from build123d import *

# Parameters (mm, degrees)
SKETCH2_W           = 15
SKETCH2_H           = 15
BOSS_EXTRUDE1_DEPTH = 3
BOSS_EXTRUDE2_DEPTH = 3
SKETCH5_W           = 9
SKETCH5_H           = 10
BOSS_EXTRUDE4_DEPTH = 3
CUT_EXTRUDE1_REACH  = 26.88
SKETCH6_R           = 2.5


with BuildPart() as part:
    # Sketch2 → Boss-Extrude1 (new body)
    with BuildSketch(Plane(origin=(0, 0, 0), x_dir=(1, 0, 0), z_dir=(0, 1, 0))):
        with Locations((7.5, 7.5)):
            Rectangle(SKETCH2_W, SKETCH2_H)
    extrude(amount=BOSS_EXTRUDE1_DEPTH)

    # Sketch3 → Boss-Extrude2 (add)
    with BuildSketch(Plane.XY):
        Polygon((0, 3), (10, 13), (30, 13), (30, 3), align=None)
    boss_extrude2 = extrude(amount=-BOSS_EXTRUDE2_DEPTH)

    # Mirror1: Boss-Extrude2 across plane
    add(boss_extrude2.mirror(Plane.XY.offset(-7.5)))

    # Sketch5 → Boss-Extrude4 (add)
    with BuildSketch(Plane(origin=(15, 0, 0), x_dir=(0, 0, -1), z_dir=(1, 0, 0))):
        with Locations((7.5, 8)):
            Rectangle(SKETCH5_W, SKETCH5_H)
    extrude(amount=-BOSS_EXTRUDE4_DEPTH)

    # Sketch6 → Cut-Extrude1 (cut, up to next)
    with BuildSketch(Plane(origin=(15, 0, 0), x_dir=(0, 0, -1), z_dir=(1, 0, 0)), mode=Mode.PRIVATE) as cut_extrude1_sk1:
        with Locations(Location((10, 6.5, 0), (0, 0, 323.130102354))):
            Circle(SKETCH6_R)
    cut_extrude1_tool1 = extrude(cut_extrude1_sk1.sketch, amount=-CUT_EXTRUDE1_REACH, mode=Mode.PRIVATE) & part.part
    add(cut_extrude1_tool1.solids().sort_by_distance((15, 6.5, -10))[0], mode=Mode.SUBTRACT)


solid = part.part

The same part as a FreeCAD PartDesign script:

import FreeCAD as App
import Part
import Sketcher
from FreeCAD import Vector
Q = App.Units.Quantity

doc = App.newDocument("Part")
body = doc.addObject("PartDesign::Body", "Body")

sketch1 = doc.addObject("Sketcher::SketchObject", "Sketch")
body.addObject(sketch1)
sketch1.AttachmentSupport = (doc.XZ_Plane, [""])
sketch1.MapMode = "FlatFace"
sketch1.addGeometry([
    Part.LineSegment(Vector(0, -15, 0), Vector(0, 0, 0)),
    Part.LineSegment(Vector(0, 0, 0), Vector(15, 0, 0)),
    Part.LineSegment(Vector(15, 0, 0), Vector(15, -15, 0)),
    Part.LineSegment(Vector(15, -15, 0), Vector(0, -15, 0)),
], False)
sketch1.addConstraint([
    Sketcher.Constraint("Coincident", 0, 2, 1, 1),
    Sketcher.Constraint("Coincident", 1, 2, 2, 1),
    Sketcher.Constraint("Coincident", 2, 2, 3, 1),
    Sketcher.Constraint("Coincident", 3, 2, 0, 1),
    Sketcher.Constraint("Vertical", 0),
    Sketcher.Constraint("Horizontal", 1),
    Sketcher.Constraint("Vertical", 2),
    Sketcher.Constraint("Horizontal", 3),
    Sketcher.Constraint("Coincident", 0, 2, -1, 1),
    Sketcher.Constraint("Equal", 3, 0),
    Sketcher.Constraint("DistanceX", 1, 1, 1, 2, Q("15 mm")),
])
pad1 = doc.addObject("PartDesign::Pad", "Pad")
body.addObject(pad1)
pad1.Profile = sketch1
pad1.Length = 3
pad1.Reversed = True

sketch2 = doc.addObject("Sketcher::SketchObject", "Sketch001")
body.addObject(sketch2)
sketch2.AttachmentSupport = (doc.XY_Plane, [""])
sketch2.MapMode = "FlatFace"
sketch2.addGeometry([
    Part.LineSegment(Vector(10, 13, 0), Vector(0, 3, 0)),
    Part.LineSegment(Vector(0, 3, 0), Vector(30, 3, 0)),
    Part.LineSegment(Vector(30, 3, 0), Vector(30, 13, 0)),
    Part.LineSegment(Vector(30, 13, 0), Vector(10, 13, 0)),
], False)
sketch2.addConstraint([
    Sketcher.Constraint("Coincident", 0, 2, 1, 1),
    Sketcher.Constraint("Coincident", 1, 2, 2, 1),
    Sketcher.Constraint("Coincident", 2, 2, 3, 1),
    Sketcher.Constraint("Coincident", 3, 2, 0, 1),
    Sketcher.Constraint("Horizontal", 1),
    Sketcher.Constraint("Vertical", 2),
    Sketcher.Constraint("Horizontal", 3),
    Sketcher.Constraint("PointOnObject", 0, 2, -2),
    Sketcher.Constraint("DistanceX", 1, 1, 1, 2, Q("30 mm")),
    Sketcher.Constraint("DistanceX", 3, 2, 3, 1, Q("20 mm")),
    Sketcher.Constraint("DistanceY", 2, 1, 2, 2, Q("10 mm")),
    Sketcher.Constraint("DistanceY", -1, 1, 0, 2, Q("3 mm")),
])
pad2 = doc.addObject("PartDesign::Pad", "Pad001")
body.addObject(pad2)
pad2.Profile = sketch2
pad2.Length = 3
pad2.Reversed = True
doc.recompute()

datumplane = doc.addObject("PartDesign::Plane", "DatumPlane")
body.addObject(datumplane)
datumplane.AttachmentSupport = (doc.XY_Plane, [""])
datumplane.MapMode = "FlatFace"
datumplane.AttachmentOffset = App.Placement(Vector(0, 0, -7.5), App.Rotation())
mirrored = doc.addObject("PartDesign::Mirrored", "Mirrored")
body.addObject(mirrored)
mirrored.Originals = [pad2]
mirrored.MirrorPlane = (datumplane, [""])
body.Tip = mirrored

sketch3 = doc.addObject("Sketcher::SketchObject", "Sketch002")
body.addObject(sketch3)
sketch3.AttachmentSupport = (doc.YZ_Plane, [""])
sketch3.MapMode = "FlatFace"
sketch3.AttachmentOffset = App.Placement(Vector(0, 0, 15), App.Rotation())
sketch3.addGeometry([
    Part.LineSegment(Vector(13, -3, 0), Vector(3, -3, 0)),
    Part.LineSegment(Vector(3, -3, 0), Vector(3, -12, 0)),
    Part.LineSegment(Vector(3, -12, 0), Vector(13, -12, 0)),
    Part.LineSegment(Vector(13, -12, 0), Vector(13, -3, 0)),
], False)
sketch3.addConstraint([
    Sketcher.Constraint("Coincident", 0, 2, 1, 1),
    Sketcher.Constraint("Coincident", 1, 2, 2, 1),
    Sketcher.Constraint("Coincident", 2, 2, 3, 1),
    Sketcher.Constraint("Coincident", 3, 2, 0, 1),
    Sketcher.Constraint("Horizontal", 0),
    Sketcher.Constraint("Vertical", 1),
    Sketcher.Constraint("Horizontal", 2),
    Sketcher.Constraint("Vertical", 3),
    Sketcher.Constraint("DistanceX", 0, 2, 0, 1, Q("10 mm")),
    Sketcher.Constraint("DistanceY", 1, 2, 1, 1, Q("9 mm")),
    Sketcher.Constraint("DistanceX", -1, 1, 0, 2, Q("3 mm")),
    Sketcher.Constraint("DistanceY", 0, 2, -1, 1, Q("3 mm")),
])
pad3 = doc.addObject("PartDesign::Pad", "Pad002")
body.addObject(pad3)
pad3.Profile = sketch3
pad3.Length = 3
pad3.Reversed = True

sketch4 = doc.addObject("Sketcher::SketchObject", "Sketch003")
body.addObject(sketch4)
sketch4.AttachmentSupport = (doc.YZ_Plane, [""])
sketch4.MapMode = "FlatFace"
sketch4.AttachmentOffset = App.Placement(Vector(0, 0, 15), App.Rotation())
sketch4.addGeometry(Part.Circle(Vector(6.5, -10, 0), Vector(0, 0, 1), 2.5), False)
sketch4.addConstraint([
    Sketcher.Constraint("Diameter", 0, Q("5 mm")),
    Sketcher.Constraint("DistanceY", 0, 3, -1, 1, Q("10 mm")),
    Sketcher.Constraint("DistanceX", -1, 1, 0, 3, Q("6.5 mm")),
])
pocket1 = doc.addObject("PartDesign::Pocket", "Pocket")
body.addObject(pocket1)
pocket1.Profile = sketch4
pocket1.Length = 13

doc.recompute()
